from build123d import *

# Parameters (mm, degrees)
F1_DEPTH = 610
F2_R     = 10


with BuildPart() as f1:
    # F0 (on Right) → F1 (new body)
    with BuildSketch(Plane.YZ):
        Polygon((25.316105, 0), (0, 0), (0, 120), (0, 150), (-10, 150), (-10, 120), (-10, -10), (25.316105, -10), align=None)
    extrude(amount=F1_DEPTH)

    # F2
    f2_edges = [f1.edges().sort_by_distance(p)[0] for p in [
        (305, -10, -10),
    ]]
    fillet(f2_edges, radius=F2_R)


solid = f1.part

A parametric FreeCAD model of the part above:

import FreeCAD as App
import Part
import Sketcher
Q = App.Units.Quantity


def edges_at(feature, points):
    """Names of the edges that pass closest to the given points."""
    edges = feature.Shape.Edges
    near = lambda p: min(range(len(edges)), key=lambda i: edges[i].distToShape(Part.Vertex(*p))[0])
    return sorted({f"Edge{near(p) + 1}" for p in points})

doc = App.newDocument("Part")
body = doc.addObject("PartDesign::Body", "Body")

sketch1 = doc.addObject("Sketcher::SketchObject", "Sketch")
body.addObject(sketch1)
sketch1.AttachmentSupport = (doc.YZ_Plane, [""])
sketch1.MapMode = "FlatFace"
sketch1.addGeometry(Part.LineSegment(App.Vector(25.316105, 0, 0), App.Vector(0, 0, 0)), False)
sketch1.addGeometry(Part.LineSegment(App.Vector(0, 0, 0), App.Vector(0, 150, 0)), False)
sketch1.addGeometry(Part.LineSegment(App.Vector(0, 150, 0), App.Vector(-10, 150, 0)), False)
sketch1.addGeometry(Part.LineSegment(App.Vector(-10, 150, 0), App.Vector(-10, -10, 0)), False)
sketch1.addGeometry(Part.LineSegment(App.Vector(-10, -10, 0), App.Vector(25.316105, -10, 0)), False)
sketch1.addGeometry(Part.LineSegment(App.Vector(25.316105, -10, 0), App.Vector(25.316105, 0, 0)), False)
sketch1.addConstraint(Sketcher.Constraint("Coincident", 0, 2, 1, 1))
sketch1.addConstraint(Sketcher.Constraint("Coincident", 1, 2, 2, 1))
sketch1.addConstraint(Sketcher.Constraint("Coincident", 2, 2, 3, 1))
sketch1.addConstraint(Sketcher.Constraint("Coincident", 3, 2, 4, 1))
sketch1.addConstraint(Sketcher.Constraint("Coincident", 4, 2, 5, 1))
sketch1.addConstraint(Sketcher.Constraint("Coincident", 5, 2, 0, 1))
sketch1.addConstraint(Sketcher.Constraint("Horizontal", 0))
sketch1.addConstraint(Sketcher.Constraint("Vertical", 1))
sketch1.addConstraint(Sketcher.Constraint("Horizontal", 2))
sketch1.addConstraint(Sketcher.Constraint("Vertical", 3))
sketch1.addConstraint(Sketcher.Constraint("Horizontal", 4))
sketch1.addConstraint(Sketcher.Constraint("Vertical", 5))
sketch1.addConstraint(Sketcher.Constraint("Coincident", 0, 2, -1, 1))
sketch1.addConstraint(Sketcher.Constraint("Equal", 2, 5))
sketch1.addConstraint(Sketcher.Constraint("DistanceX", 2, 2, 2, 1, Q("10 mm")))
sketch1.addConstraint(Sketcher.Constraint("DistanceY", 1, 1, 1, 2, Q("150 mm")))
sketch1.addConstraint(Sketcher.Constraint("DistanceX", 0, 2, 0, 1, Q("25.316105 mm")))
pad1 = doc.addObject("PartDesign::Pad", "Pad")
body.addObject(pad1)
pad1.Profile = sketch1
pad1.Length = 610
doc.recompute()

fillet = doc.addObject("PartDesign::Fillet", "Fillet")
body.addObject(fillet)
fillet.Base = (pad1, edges_at(pad1, [(305, -10, -10)]))
fillet.Radius = 10

doc.recompute()
